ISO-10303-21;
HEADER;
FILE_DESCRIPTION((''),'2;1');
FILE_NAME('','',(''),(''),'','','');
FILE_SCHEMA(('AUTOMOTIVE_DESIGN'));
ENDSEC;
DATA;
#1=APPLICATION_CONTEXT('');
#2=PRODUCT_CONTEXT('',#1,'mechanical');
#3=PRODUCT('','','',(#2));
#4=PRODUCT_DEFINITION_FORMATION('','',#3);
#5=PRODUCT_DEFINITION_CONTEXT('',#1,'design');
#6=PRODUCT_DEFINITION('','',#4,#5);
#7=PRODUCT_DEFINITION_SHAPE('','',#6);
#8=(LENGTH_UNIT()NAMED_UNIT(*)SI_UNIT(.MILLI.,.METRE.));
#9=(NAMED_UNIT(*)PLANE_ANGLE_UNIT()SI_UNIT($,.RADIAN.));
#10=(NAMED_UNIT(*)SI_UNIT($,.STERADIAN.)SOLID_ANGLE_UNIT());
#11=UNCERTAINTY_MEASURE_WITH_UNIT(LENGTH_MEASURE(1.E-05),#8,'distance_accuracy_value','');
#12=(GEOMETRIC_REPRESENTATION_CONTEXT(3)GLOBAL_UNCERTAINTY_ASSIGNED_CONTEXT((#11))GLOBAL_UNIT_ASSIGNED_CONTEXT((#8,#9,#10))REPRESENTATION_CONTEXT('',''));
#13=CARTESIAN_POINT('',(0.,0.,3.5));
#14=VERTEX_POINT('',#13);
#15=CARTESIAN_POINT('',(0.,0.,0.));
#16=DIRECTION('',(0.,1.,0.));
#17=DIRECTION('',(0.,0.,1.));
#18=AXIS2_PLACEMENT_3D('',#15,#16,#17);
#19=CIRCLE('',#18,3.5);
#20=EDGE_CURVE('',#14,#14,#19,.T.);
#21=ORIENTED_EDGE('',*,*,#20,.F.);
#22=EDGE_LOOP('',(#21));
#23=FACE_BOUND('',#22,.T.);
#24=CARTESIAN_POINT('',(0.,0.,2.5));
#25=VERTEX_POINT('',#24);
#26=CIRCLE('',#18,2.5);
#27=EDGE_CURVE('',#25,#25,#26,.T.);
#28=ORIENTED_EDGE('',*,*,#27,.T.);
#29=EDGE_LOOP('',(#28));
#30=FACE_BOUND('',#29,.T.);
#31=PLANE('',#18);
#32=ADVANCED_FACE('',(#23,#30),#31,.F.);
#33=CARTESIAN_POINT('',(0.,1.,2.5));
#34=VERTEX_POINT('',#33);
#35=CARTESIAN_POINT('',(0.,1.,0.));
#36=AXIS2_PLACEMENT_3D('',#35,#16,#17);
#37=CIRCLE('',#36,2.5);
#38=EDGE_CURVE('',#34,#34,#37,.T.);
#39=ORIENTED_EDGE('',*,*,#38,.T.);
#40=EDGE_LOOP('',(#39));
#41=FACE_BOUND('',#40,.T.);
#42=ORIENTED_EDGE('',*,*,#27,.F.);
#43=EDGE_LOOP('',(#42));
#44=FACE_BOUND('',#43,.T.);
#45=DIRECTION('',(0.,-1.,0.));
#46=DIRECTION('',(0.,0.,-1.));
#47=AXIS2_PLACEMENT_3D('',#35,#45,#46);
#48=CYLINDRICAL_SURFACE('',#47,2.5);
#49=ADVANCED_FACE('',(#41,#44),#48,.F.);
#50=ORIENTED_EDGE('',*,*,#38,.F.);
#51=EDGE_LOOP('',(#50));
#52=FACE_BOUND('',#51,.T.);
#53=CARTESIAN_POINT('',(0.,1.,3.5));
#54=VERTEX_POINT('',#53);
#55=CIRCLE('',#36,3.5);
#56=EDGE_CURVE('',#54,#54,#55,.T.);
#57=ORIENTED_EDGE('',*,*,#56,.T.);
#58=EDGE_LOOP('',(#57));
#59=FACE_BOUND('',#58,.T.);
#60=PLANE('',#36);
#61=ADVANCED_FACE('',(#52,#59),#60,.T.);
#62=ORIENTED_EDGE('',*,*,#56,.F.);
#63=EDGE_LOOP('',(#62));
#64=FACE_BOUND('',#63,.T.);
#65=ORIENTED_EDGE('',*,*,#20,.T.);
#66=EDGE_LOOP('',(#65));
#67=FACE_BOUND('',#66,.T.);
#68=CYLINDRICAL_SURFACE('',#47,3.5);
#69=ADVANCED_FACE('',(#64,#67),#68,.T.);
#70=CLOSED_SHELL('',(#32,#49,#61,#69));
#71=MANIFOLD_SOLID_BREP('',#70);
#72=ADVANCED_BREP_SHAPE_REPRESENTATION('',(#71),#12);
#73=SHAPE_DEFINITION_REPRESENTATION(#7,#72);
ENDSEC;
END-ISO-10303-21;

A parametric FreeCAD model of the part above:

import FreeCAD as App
import Part
import Sketcher
from FreeCAD import Vector
Q = App.Units.Quantity

doc = App.newDocument("Part")
body = doc.addObject("PartDesign::Body", "Body")

# Sketch on XZ plane
sketch1 = doc.addObject("Sketcher::SketchObject", "Sketch")
body.addObject(sketch1)
sketch1.AttachmentSupport = (doc.XZ_Plane, [""])
sketch1.MapMode = "FlatFace"
sketch1.addGeometry([
    Part.Circle(Vector(0, 0, 0), Vector(0, 0, 1), 3.5),
    Part.Circle(Vector(0, 0, 0), Vector(0, 0, 1), 2.5),
], False)
sketch1.addConstraint([
    Sketcher.Constraint("Coincident", 0, 3, -1, 1),
    Sketcher.Constraint("Coincident", 1, 3, -1, 1),
    Sketcher.Constraint("Diameter", 0, Q("7 mm")),
    Sketcher.Constraint("Diameter", 1, Q("5 mm")),
])
pad1 = doc.addObject("PartDesign::Pad", "Pad")
body.addObject(pad1)
pad1.Profile = sketch1
pad1.Length = 1
pad1.Reversed = True

doc.recompute()
